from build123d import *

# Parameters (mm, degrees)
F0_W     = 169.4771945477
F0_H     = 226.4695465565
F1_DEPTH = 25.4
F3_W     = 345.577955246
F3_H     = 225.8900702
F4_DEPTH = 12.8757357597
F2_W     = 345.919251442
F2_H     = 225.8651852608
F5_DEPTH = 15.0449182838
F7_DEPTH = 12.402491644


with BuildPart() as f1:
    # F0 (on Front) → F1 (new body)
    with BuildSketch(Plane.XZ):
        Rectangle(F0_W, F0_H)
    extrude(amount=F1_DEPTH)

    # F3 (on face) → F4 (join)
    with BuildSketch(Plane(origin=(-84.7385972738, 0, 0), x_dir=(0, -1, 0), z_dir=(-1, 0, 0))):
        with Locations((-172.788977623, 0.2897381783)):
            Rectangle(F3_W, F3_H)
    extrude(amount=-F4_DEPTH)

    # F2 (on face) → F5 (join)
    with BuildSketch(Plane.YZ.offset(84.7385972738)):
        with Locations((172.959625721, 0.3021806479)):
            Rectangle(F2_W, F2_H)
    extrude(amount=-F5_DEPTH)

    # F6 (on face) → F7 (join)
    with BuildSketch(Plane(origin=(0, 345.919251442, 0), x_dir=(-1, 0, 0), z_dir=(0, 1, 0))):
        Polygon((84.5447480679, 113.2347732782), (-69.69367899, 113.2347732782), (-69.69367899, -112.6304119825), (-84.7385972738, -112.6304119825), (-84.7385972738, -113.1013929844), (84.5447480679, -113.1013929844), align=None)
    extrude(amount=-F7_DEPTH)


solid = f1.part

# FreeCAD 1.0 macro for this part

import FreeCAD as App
import Part
import Sketcher
from FreeCAD import Vector
Q = App.Units.Quantity

doc = App.newDocument("Part")
body = doc.addObject("PartDesign::Body", "Body")

sketch1 = doc.addObject("Sketcher::SketchObject", "Sketch")
body.addObject(sketch1)
sketch1.AttachmentSupport = (doc.XZ_Plane, [""])
sketch1.MapMode = "FlatFace"
sketch1.addGeometry([
    Part.LineSegment(Vector(-85, 113, 0), Vector(-85, -113, 0)),
    Part.LineSegment(Vector(-85, -113, 0), Vector(85, -113, 0)),
    Part.LineSegment(Vector(85, -113, 0), Vector(85, 113, 0)),
    Part.LineSegment(Vector(85, 113, 0), Vector(-85, 113, 0)),
], False)
sketch1.addConstraint([
    Sketcher.Constraint("Coincident", 0, 2, 1, 1),
    Sketcher.Constraint("Coincident", 1, 2, 2, 1),
    Sketcher.Constraint("Coincident", 2, 2, 3, 1),
    Sketcher.Constraint("Coincident", 3, 2, 0, 1),
    Sketcher.Constraint("Vertical", 0),
    Sketcher.Constraint("Horizontal", 1),
    Sketcher.Constraint("Vertical", 2),
    Sketcher.Constraint("Horizontal", 3),
    Sketcher.Constraint("Symmetric", 0, 2, 2, 2, -1, 1),
    Sketcher.Constraint("DistanceX", 1, 1, 1, 2, Q("169.477195 mm")),
    Sketcher.Constraint("DistanceY", 0, 2, 0, 1, Q("226.469547 mm")),
])
pad1 = doc.addObject("PartDesign::Pad", "Pad")
body.addObject(pad1)
pad1.Profile = sketch1
pad1.Length = Q("1 in")

sketch2 = doc.addObject("Sketcher::SketchObject", "Sketch001")
body.addObject(sketch2)
sketch2.AttachmentSupport = (doc.YZ_Plane, [""])
sketch2.MapMode = "FlatFace"
sketch2.AttachmentOffset = App.Placement(Vector(0, 0, -84.738597), App.Rotation())
sketch2.addGeometry([
    Part.LineSegment(Vector(346, 113, 0), Vector(346, -113, 0)),
    Part.LineSegment(Vector(346, -113, 0), Vector(0, -113, 0)),
    Part.LineSegment(Vector(0, -113, 0), Vector(0, 113, 0)),
    Part.LineSegment(Vector(0, 113, 0), Vector(346, 113, 0)),
], False)
sketch2.addConstraint([
    Sketcher.Constraint("Coincident", 0, 2, 1, 1),
    Sketcher.Constraint("Coincident", 1, 2, 2, 1),
    Sketcher.Constraint("Coincident", 2, 2, 3, 1),
    Sketcher.Constraint("Coincident", 3, 2, 0, 1),
    Sketcher.Constraint("Vertical", 0),
    Sketcher.Constraint("Horizontal", 1),
    Sketcher.Constraint("Vertical", 2),
    Sketcher.Constraint("Horizontal", 3),
    Sketcher.Constraint("PointOnObject", 1, 2, -2),
    Sketcher.Constraint("DistanceY", 0, 2, 0, 1, Q("225.89007 mm")),
    Sketcher.Constraint("DistanceX", 1, 2, 1, 1, Q("345.577955 mm")),
    Sketcher.Constraint("DistanceY", 0, 2, -1, 1, Q("112.655297 mm")),
])
pad2 = doc.addObject("PartDesign::Pad", "Pad001")
body.addObject(pad2)
pad2.Profile = sketch2
pad2.Length = 12.875736

sketch3 = doc.addObject("Sketcher::SketchObject", "Sketch002")
body.addObject(sketch3)
sketch3.AttachmentSupport = (doc.YZ_Plane, [""])
sketch3.MapMode = "FlatFace"
sketch3.AttachmentOffset = App.Placement(Vector(0, 0, 84.738597), App.Rotation())
sketch3.addGeometry([
    Part.LineSegment(Vector(0, 113, 0), Vector(0, -113, 0)),
    Part.LineSegment(Vector(0, -113, 0), Vector(346, -113, 0)),
    Part.LineSegment(Vector(346, -113, 0), Vector(346, 113, 0)),
    Part.LineSegment(Vector(346, 113, 0), Vector(0, 113, 0)),
], False)
sketch3.addConstraint([
    Sketcher.Constraint("Coincident", 0, 2, 1, 1),
    Sketcher.Constraint("Coincident", 1, 2, 2, 1),
    Sketcher.Constraint("Coincident", 2, 2, 3, 1),
    Sketcher.Constraint("Coincident", 3, 2, 0, 1),
    Sketcher.Constraint("Vertical", 0),
    Sketcher.Constraint("Horizontal", 1),
    Sketcher.Constraint("Vertical", 2),
    Sketcher.Constraint("Horizontal", 3),
    Sketcher.Constraint("PointOnObject", 0, 2, -2),
    Sketcher.Constraint("DistanceX", 1, 1, 1, 2, Q("345.919251 mm")),
    Sketcher.Constraint("DistanceY", 0, 2, 0, 1, Q("225.865185 mm")),
    Sketcher.Constraint("DistanceY", 0, 2, -1, 1, Q("112.630412 mm")),
])
pad3 = doc.addObject("PartDesign::Pad", "Pad002")
body.addObject(pad3)
pad3.Profile = sketch3
pad3.Length = 15.044918
pad3.Reversed = True

sketch4 = doc.addObject("Sketcher::SketchObject", "Sketch003")
body.addObject(sketch4)
sketch4.AttachmentSupport = (doc.XZ_Plane, [""])
sketch4.MapMode = "FlatFace"
sketch4.AttachmentOffset = App.Placement(Vector(0, 0, -345.919251), App.Rotation())
sketch4.addGeometry([
    Part.LineSegment(Vector(-84.54, 113.23, 0), Vector(69.69, 113.23, 0)),
    Part.LineSegment(Vector(69.69, 113.23, 0), Vector(69.69, -112.63, 0)),
    Part.LineSegment(Vector(69.69, -112.63, 0), Vector(84.74, -112.63, 0)),
    Part.LineSegment(Vector(84.74, -112.63, 0), Vector(84.74, -113.1, 0)),
    Part.LineSegment(Vector(84.74, -113.1, 0), Vector(-84.54, -113.1, 0)),
    Part.LineSegment(Vector(-84.54, -113.1, 0), Vector(-84.54, 113.23, 0)),
], False)
sketch4.addConstraint([
    Sketcher.Constraint("Coincident", 0, 2, 1, 1),
    Sketcher.Constraint("Coincident", 1, 2, 2, 1),
    Sketcher.Constraint("Coincident", 2, 2, 3, 1),
    Sketcher.Constraint("Coincident", 3, 2, 4, 1),
    Sketcher.Constraint("Coincident", 4, 2, 5, 1),
    Sketcher.Constraint("Coincident", 5, 2, 0, 1),
    Sketcher.Constraint("Horizontal", 0),
    Sketcher.Constraint("Vertical", 1),
    Sketcher.Constraint("Horizontal", 2),
    Sketcher.Constraint("Vertical", 3),
    Sketcher.Constraint("Horizontal", 4),
    Sketcher.Constraint("Vertical", 5),
    Sketcher.Constraint("DistanceX", 2, 1, 2, 2, Q("15.044918 mm")),
    Sketcher.Constraint("DistanceY", 3, 2, 3, 1, Q("0.470981 mm")),
    Sketcher.Constraint("DistanceX", 0, 1, 0, 2, Q("154.238427 mm")),
    Sketcher.Constraint("DistanceY", 1, 2, 1, 1, Q("225.865185 mm")),
    Sketcher.Constraint("DistanceX", -1, 1, 0, 2, Q("69.693679 mm")),
    Sketcher.Constraint("DistanceY", 1, 2, -1, 1, Q("112.630412 mm")),
])
pad4 = doc.addObject("PartDesign::Pad", "Pad003")
body.addObject(pad4)
pad4.Profile = sketch4
pad4.Length = 12.402492

doc.recompute()
